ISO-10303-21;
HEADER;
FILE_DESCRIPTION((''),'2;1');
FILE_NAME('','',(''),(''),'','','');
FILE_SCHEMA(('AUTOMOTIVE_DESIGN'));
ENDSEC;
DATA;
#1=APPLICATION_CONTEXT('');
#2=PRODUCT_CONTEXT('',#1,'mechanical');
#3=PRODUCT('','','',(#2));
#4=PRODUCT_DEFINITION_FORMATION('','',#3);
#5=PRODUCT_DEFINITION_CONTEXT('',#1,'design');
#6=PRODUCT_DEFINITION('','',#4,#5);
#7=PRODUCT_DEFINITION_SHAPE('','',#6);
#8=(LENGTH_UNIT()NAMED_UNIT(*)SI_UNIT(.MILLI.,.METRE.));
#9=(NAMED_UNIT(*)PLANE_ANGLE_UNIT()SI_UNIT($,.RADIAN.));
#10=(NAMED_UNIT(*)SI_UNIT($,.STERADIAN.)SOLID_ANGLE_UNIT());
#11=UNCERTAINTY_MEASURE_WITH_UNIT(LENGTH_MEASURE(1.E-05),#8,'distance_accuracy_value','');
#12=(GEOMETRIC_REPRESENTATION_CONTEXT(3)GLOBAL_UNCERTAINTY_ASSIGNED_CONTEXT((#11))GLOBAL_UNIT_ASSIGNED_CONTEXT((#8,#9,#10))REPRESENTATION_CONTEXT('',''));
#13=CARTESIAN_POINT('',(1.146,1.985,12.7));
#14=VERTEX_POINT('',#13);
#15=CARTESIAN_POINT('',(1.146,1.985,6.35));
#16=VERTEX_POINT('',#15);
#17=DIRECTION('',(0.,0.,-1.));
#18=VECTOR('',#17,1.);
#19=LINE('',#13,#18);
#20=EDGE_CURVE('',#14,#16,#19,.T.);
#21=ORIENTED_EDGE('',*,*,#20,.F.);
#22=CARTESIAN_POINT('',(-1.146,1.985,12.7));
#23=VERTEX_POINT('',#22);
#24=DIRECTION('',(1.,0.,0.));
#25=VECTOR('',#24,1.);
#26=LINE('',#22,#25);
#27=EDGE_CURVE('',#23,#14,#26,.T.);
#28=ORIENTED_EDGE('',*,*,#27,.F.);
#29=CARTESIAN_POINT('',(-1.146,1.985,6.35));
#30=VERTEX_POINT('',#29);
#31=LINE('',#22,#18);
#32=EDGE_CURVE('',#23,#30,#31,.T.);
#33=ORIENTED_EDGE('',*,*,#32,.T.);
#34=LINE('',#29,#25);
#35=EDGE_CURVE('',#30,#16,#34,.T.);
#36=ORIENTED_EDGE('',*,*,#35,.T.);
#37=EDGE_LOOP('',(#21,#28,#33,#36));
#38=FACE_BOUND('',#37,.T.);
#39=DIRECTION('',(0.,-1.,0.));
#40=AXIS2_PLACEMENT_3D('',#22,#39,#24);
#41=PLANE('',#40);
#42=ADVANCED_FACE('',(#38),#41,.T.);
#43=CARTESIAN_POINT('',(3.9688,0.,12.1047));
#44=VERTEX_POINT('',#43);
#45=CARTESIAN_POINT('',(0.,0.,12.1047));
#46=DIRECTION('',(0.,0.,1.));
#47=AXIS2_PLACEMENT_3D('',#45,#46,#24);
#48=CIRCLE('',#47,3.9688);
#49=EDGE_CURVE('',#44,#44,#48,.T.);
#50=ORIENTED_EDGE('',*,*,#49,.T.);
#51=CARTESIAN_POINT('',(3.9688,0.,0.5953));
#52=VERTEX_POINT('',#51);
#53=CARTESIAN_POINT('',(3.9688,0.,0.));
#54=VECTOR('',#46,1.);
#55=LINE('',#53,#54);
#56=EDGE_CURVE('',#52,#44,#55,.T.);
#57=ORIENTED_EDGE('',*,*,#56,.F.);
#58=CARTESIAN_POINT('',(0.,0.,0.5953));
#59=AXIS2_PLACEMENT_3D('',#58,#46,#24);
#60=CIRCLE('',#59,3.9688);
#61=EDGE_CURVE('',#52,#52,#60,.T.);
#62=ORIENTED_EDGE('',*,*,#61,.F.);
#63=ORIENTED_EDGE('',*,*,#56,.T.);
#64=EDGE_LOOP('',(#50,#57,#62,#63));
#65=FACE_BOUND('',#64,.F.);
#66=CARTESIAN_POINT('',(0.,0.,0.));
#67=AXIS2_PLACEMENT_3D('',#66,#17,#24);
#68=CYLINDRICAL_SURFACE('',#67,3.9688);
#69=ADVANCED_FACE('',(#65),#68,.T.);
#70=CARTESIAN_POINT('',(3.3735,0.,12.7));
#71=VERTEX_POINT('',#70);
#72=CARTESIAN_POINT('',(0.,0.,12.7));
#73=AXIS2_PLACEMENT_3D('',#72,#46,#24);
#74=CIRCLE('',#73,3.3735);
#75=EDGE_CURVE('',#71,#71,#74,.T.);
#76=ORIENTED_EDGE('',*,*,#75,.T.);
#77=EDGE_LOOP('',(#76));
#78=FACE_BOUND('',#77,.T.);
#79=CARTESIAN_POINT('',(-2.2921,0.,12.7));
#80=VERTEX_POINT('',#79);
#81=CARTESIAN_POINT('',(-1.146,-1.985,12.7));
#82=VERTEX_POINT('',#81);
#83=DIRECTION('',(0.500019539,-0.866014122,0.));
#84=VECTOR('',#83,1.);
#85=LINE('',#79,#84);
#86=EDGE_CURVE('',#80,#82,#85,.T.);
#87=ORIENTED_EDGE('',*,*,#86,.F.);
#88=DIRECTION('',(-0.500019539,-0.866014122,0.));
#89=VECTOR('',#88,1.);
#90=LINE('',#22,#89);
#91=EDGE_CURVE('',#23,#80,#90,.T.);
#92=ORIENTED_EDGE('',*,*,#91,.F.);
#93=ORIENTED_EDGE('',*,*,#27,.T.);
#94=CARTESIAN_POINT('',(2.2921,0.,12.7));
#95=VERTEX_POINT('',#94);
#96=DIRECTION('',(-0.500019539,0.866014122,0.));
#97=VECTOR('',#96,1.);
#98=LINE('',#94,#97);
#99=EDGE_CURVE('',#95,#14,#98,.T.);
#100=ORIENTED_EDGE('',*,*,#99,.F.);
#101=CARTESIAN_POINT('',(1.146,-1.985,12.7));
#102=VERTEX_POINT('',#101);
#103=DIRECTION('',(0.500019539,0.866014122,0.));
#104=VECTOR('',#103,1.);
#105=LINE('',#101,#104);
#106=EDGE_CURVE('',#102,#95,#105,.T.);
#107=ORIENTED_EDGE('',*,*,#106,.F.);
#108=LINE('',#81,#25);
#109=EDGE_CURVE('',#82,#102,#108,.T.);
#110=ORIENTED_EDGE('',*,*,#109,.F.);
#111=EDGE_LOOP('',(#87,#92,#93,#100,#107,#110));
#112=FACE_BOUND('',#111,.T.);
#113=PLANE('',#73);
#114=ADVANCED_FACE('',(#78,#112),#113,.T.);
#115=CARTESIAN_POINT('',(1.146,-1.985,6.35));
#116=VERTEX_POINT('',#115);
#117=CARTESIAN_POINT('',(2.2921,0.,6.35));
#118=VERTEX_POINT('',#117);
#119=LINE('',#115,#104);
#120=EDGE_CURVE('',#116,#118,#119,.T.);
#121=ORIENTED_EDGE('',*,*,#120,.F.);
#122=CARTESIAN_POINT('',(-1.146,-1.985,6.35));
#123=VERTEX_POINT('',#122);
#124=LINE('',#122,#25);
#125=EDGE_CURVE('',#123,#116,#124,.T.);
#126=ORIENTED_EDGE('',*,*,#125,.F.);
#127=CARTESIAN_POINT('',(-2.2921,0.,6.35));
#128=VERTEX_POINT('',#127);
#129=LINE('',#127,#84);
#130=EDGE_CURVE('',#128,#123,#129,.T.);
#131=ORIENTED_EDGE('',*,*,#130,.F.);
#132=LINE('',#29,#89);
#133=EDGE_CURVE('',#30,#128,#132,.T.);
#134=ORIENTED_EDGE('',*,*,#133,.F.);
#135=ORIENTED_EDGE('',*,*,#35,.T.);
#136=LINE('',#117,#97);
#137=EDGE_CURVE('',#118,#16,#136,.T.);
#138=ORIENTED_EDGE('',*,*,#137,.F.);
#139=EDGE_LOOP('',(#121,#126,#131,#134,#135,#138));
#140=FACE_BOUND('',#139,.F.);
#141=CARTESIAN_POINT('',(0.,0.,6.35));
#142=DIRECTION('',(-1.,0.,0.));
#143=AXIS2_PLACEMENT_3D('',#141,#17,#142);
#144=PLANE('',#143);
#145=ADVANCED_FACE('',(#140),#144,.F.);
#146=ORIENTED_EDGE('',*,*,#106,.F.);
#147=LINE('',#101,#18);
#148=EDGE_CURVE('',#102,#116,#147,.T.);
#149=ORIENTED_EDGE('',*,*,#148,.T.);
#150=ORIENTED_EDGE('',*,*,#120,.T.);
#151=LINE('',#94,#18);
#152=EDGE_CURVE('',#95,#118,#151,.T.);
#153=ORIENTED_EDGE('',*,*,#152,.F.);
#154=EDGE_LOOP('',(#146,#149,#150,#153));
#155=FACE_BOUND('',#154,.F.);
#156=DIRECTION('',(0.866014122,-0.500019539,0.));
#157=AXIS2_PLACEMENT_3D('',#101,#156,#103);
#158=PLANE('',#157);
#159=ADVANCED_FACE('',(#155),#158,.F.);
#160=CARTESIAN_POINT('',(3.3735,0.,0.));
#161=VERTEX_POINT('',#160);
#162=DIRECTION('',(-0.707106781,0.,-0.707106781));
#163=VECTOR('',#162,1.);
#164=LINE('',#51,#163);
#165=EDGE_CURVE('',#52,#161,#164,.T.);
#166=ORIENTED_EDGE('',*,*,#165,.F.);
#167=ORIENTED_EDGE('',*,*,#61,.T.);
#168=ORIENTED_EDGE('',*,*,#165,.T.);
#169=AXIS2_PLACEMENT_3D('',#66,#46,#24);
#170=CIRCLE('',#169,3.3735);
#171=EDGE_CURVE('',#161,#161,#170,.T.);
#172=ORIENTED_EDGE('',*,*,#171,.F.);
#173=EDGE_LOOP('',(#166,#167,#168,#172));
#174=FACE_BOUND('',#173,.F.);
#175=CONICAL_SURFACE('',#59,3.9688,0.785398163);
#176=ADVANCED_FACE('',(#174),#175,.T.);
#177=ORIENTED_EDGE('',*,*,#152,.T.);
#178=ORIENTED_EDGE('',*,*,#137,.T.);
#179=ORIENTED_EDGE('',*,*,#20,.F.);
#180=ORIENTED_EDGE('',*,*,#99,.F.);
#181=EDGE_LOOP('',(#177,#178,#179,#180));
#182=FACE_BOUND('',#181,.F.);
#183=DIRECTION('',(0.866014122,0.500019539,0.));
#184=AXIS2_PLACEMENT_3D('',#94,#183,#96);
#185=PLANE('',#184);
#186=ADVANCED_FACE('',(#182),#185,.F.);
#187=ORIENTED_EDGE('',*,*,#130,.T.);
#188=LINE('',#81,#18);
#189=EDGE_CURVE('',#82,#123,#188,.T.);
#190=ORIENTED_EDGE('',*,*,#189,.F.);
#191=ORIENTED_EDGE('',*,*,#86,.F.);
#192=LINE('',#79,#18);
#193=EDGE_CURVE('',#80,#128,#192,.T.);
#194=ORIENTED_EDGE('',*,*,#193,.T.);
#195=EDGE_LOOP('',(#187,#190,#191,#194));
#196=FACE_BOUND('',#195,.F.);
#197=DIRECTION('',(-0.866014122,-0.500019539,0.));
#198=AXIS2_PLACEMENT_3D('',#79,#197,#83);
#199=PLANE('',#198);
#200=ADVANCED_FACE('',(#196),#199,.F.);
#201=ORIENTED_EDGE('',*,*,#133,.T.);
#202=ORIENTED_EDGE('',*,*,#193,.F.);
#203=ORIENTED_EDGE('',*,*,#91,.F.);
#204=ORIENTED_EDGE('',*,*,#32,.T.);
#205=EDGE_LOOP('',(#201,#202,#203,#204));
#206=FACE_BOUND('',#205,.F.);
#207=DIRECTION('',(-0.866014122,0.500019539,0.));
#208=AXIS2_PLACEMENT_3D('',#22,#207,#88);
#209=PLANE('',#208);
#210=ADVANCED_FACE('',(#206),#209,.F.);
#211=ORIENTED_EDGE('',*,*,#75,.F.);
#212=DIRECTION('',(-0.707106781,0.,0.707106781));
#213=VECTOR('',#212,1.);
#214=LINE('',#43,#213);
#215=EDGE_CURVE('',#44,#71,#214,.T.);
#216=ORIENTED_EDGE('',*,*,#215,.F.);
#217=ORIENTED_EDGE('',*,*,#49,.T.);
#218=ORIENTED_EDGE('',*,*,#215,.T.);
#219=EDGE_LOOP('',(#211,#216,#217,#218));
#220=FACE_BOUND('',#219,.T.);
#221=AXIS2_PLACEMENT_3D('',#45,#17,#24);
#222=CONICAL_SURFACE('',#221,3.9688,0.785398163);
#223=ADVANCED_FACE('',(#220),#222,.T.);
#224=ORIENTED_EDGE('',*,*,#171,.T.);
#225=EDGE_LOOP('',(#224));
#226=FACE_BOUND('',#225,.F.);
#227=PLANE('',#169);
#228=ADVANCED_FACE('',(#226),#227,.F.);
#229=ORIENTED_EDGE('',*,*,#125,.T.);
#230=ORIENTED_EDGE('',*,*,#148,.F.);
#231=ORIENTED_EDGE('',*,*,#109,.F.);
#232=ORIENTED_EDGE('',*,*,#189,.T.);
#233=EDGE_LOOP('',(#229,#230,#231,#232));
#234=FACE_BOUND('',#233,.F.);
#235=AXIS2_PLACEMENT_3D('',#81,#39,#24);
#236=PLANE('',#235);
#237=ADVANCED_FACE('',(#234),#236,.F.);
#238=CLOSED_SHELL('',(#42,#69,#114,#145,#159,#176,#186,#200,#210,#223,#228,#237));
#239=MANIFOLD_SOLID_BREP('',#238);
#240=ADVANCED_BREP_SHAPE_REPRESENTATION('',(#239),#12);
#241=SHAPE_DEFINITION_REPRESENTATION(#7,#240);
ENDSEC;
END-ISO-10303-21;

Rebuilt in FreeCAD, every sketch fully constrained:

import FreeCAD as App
import Part
import Sketcher
Q = App.Units.Quantity


def edges_at(feature, points):
    """Names of the edges that pass closest to the given points."""
    edges = feature.Shape.Edges
    near = lambda p: min(range(len(edges)), key=lambda i: edges[i].distToShape(Part.Vertex(*p))[0])
    return sorted({f"Edge{near(p) + 1}" for p in points})

doc = App.newDocument("Part")
params = doc.addObject("Spreadsheet::Sheet", "Params")
for row, (alias, value) in enumerate([
    ("sketch1_diameter", "0.3125 in"),
    ("pad1_length", "0.5 in"),
    ("chamfer_size", "0.5953 mm"),
    ("pocket1_length", "0.25 in"),
], start=1):
    params.set(f"A{row}", alias)
    params.set(f"B{row}", "=" + value)
    params.setAlias(f"B{row}", alias)

body = doc.addObject("PartDesign::Body", "Body")

# Sketch on XY plane
sketch1 = body.newObject("Sketcher::SketchObject", "Sketch")
sketch1.AttachmentSupport = (doc.getObject("XY_Plane"), [""])
sketch1.MapMode = "FlatFace"
sketch1.addGeometry(Part.Circle(App.Vector(0, 0, 0), App.Vector(0, 0, 1), 4), False)
sketch1.addConstraint(Sketcher.Constraint("Coincident", 0, 3, -1, 1))
sketch1.addConstraint(Sketcher.Constraint("Diameter", 0, Q("0.3125 in")))
sketch1.setExpression("Constraints[1]", "Params.sketch1_diameter")
pad1 = body.newObject("PartDesign::Pad", "Pad")
pad1.Profile = sketch1
pad1.setExpression("Length", "Params.pad1_length")
doc.recompute()

chamfer = body.newObject("PartDesign::Chamfer", "Chamfer")
chamfer.Base = (pad1, edges_at(pad1, [(-3.969, 0, 0), (-3.969, 0, 12.7)]))
chamfer.setExpression("Size", "Params.chamfer_size")

# Sketch on XY plane
sketch2 = body.newObject("Sketcher::SketchObject", "Sketch001")
sketch2.AttachmentSupport = (doc.getObject("XY_Plane"), [""])
sketch2.MapMode = "FlatFace"
sketch2.AttachmentOffset = App.Placement(App.Vector(0, 0, 0.5 * 25.4), App.Rotation())
sketch2.addGeometry(Part.LineSegment(App.Vector(1.1, 2, 0), App.Vector(-1.1, 2, 0)), False)
sketch2.addGeometry(Part.LineSegment(App.Vector(-1.1, 2, 0), App.Vector(-2.3, 0, 0)), False)
sketch2.addGeometry(Part.LineSegment(App.Vector(-2.3, 0, 0), App.Vector(-1.1, -2, 0)), False)
sketch2.addGeometry(Part.LineSegment(App.Vector(-1.1, -2, 0), App.Vector(1.1, -2, 0)), False)
sketch2.addGeometry(Part.LineSegment(App.Vector(1.1, -2, 0), App.Vector(2.3, 0, 0)), False)
sketch2.addGeometry(Part.LineSegment(App.Vector(2.3, 0, 0), App.Vector(1.1, 2, 0)), False)
sketch2.addConstraint(Sketcher.Constraint("Coincident", 0, 2, 1, 1))
sketch2.addConstraint(Sketcher.Constraint("Coincident", 1, 2, 2, 1))
sketch2.addConstraint(Sketcher.Constraint("Coincident", 2, 2, 3, 1))
sketch2.addConstraint(Sketcher.Constraint("Coincident", 3, 2, 4, 1))
sketch2.addConstraint(Sketcher.Constraint("Coincident", 4, 2, 5, 1))
sketch2.addConstraint(Sketcher.Constraint("Coincident", 5, 2, 0, 1))
sketch2.addConstraint(Sketcher.Constraint("Horizontal", 0))
sketch2.addConstraint(Sketcher.Constraint("Horizontal", 3))
sketch2.addConstraint(Sketcher.Constraint("Symmetric", 0, 2, 3, 2, -1, 1))
sketch2.addConstraint(Sketcher.Constraint("Symmetric", 1, 2, 4, 2, -1, 1))
sketch2.addConstraint(Sketcher.Constraint("PointOnObject", 1, 2, -1))
sketch2.addConstraint(Sketcher.Constraint("Parallel", 2, 5))
sketch2.addConstraint(Sketcher.Constraint("Vertical", 0, 2, 2, 2))
sketch2.addConstraint(Sketcher.Constraint("DistanceX", 0, 2, 0, 1, Q("2.292 mm")))
sketch2.addConstraint(Sketcher.Constraint("DistanceY", 2, 2, 0, 2, Q("0.1563 in")))
sketch2.addConstraint(Sketcher.Constraint("Distance", 1, Q("2.292 mm")))
pocket1 = body.newObject("PartDesign::Pocket", "Pocket")
pocket1.Profile = sketch2
pocket1.setExpression("Length", "Params.pocket1_length")

doc.recompute()
